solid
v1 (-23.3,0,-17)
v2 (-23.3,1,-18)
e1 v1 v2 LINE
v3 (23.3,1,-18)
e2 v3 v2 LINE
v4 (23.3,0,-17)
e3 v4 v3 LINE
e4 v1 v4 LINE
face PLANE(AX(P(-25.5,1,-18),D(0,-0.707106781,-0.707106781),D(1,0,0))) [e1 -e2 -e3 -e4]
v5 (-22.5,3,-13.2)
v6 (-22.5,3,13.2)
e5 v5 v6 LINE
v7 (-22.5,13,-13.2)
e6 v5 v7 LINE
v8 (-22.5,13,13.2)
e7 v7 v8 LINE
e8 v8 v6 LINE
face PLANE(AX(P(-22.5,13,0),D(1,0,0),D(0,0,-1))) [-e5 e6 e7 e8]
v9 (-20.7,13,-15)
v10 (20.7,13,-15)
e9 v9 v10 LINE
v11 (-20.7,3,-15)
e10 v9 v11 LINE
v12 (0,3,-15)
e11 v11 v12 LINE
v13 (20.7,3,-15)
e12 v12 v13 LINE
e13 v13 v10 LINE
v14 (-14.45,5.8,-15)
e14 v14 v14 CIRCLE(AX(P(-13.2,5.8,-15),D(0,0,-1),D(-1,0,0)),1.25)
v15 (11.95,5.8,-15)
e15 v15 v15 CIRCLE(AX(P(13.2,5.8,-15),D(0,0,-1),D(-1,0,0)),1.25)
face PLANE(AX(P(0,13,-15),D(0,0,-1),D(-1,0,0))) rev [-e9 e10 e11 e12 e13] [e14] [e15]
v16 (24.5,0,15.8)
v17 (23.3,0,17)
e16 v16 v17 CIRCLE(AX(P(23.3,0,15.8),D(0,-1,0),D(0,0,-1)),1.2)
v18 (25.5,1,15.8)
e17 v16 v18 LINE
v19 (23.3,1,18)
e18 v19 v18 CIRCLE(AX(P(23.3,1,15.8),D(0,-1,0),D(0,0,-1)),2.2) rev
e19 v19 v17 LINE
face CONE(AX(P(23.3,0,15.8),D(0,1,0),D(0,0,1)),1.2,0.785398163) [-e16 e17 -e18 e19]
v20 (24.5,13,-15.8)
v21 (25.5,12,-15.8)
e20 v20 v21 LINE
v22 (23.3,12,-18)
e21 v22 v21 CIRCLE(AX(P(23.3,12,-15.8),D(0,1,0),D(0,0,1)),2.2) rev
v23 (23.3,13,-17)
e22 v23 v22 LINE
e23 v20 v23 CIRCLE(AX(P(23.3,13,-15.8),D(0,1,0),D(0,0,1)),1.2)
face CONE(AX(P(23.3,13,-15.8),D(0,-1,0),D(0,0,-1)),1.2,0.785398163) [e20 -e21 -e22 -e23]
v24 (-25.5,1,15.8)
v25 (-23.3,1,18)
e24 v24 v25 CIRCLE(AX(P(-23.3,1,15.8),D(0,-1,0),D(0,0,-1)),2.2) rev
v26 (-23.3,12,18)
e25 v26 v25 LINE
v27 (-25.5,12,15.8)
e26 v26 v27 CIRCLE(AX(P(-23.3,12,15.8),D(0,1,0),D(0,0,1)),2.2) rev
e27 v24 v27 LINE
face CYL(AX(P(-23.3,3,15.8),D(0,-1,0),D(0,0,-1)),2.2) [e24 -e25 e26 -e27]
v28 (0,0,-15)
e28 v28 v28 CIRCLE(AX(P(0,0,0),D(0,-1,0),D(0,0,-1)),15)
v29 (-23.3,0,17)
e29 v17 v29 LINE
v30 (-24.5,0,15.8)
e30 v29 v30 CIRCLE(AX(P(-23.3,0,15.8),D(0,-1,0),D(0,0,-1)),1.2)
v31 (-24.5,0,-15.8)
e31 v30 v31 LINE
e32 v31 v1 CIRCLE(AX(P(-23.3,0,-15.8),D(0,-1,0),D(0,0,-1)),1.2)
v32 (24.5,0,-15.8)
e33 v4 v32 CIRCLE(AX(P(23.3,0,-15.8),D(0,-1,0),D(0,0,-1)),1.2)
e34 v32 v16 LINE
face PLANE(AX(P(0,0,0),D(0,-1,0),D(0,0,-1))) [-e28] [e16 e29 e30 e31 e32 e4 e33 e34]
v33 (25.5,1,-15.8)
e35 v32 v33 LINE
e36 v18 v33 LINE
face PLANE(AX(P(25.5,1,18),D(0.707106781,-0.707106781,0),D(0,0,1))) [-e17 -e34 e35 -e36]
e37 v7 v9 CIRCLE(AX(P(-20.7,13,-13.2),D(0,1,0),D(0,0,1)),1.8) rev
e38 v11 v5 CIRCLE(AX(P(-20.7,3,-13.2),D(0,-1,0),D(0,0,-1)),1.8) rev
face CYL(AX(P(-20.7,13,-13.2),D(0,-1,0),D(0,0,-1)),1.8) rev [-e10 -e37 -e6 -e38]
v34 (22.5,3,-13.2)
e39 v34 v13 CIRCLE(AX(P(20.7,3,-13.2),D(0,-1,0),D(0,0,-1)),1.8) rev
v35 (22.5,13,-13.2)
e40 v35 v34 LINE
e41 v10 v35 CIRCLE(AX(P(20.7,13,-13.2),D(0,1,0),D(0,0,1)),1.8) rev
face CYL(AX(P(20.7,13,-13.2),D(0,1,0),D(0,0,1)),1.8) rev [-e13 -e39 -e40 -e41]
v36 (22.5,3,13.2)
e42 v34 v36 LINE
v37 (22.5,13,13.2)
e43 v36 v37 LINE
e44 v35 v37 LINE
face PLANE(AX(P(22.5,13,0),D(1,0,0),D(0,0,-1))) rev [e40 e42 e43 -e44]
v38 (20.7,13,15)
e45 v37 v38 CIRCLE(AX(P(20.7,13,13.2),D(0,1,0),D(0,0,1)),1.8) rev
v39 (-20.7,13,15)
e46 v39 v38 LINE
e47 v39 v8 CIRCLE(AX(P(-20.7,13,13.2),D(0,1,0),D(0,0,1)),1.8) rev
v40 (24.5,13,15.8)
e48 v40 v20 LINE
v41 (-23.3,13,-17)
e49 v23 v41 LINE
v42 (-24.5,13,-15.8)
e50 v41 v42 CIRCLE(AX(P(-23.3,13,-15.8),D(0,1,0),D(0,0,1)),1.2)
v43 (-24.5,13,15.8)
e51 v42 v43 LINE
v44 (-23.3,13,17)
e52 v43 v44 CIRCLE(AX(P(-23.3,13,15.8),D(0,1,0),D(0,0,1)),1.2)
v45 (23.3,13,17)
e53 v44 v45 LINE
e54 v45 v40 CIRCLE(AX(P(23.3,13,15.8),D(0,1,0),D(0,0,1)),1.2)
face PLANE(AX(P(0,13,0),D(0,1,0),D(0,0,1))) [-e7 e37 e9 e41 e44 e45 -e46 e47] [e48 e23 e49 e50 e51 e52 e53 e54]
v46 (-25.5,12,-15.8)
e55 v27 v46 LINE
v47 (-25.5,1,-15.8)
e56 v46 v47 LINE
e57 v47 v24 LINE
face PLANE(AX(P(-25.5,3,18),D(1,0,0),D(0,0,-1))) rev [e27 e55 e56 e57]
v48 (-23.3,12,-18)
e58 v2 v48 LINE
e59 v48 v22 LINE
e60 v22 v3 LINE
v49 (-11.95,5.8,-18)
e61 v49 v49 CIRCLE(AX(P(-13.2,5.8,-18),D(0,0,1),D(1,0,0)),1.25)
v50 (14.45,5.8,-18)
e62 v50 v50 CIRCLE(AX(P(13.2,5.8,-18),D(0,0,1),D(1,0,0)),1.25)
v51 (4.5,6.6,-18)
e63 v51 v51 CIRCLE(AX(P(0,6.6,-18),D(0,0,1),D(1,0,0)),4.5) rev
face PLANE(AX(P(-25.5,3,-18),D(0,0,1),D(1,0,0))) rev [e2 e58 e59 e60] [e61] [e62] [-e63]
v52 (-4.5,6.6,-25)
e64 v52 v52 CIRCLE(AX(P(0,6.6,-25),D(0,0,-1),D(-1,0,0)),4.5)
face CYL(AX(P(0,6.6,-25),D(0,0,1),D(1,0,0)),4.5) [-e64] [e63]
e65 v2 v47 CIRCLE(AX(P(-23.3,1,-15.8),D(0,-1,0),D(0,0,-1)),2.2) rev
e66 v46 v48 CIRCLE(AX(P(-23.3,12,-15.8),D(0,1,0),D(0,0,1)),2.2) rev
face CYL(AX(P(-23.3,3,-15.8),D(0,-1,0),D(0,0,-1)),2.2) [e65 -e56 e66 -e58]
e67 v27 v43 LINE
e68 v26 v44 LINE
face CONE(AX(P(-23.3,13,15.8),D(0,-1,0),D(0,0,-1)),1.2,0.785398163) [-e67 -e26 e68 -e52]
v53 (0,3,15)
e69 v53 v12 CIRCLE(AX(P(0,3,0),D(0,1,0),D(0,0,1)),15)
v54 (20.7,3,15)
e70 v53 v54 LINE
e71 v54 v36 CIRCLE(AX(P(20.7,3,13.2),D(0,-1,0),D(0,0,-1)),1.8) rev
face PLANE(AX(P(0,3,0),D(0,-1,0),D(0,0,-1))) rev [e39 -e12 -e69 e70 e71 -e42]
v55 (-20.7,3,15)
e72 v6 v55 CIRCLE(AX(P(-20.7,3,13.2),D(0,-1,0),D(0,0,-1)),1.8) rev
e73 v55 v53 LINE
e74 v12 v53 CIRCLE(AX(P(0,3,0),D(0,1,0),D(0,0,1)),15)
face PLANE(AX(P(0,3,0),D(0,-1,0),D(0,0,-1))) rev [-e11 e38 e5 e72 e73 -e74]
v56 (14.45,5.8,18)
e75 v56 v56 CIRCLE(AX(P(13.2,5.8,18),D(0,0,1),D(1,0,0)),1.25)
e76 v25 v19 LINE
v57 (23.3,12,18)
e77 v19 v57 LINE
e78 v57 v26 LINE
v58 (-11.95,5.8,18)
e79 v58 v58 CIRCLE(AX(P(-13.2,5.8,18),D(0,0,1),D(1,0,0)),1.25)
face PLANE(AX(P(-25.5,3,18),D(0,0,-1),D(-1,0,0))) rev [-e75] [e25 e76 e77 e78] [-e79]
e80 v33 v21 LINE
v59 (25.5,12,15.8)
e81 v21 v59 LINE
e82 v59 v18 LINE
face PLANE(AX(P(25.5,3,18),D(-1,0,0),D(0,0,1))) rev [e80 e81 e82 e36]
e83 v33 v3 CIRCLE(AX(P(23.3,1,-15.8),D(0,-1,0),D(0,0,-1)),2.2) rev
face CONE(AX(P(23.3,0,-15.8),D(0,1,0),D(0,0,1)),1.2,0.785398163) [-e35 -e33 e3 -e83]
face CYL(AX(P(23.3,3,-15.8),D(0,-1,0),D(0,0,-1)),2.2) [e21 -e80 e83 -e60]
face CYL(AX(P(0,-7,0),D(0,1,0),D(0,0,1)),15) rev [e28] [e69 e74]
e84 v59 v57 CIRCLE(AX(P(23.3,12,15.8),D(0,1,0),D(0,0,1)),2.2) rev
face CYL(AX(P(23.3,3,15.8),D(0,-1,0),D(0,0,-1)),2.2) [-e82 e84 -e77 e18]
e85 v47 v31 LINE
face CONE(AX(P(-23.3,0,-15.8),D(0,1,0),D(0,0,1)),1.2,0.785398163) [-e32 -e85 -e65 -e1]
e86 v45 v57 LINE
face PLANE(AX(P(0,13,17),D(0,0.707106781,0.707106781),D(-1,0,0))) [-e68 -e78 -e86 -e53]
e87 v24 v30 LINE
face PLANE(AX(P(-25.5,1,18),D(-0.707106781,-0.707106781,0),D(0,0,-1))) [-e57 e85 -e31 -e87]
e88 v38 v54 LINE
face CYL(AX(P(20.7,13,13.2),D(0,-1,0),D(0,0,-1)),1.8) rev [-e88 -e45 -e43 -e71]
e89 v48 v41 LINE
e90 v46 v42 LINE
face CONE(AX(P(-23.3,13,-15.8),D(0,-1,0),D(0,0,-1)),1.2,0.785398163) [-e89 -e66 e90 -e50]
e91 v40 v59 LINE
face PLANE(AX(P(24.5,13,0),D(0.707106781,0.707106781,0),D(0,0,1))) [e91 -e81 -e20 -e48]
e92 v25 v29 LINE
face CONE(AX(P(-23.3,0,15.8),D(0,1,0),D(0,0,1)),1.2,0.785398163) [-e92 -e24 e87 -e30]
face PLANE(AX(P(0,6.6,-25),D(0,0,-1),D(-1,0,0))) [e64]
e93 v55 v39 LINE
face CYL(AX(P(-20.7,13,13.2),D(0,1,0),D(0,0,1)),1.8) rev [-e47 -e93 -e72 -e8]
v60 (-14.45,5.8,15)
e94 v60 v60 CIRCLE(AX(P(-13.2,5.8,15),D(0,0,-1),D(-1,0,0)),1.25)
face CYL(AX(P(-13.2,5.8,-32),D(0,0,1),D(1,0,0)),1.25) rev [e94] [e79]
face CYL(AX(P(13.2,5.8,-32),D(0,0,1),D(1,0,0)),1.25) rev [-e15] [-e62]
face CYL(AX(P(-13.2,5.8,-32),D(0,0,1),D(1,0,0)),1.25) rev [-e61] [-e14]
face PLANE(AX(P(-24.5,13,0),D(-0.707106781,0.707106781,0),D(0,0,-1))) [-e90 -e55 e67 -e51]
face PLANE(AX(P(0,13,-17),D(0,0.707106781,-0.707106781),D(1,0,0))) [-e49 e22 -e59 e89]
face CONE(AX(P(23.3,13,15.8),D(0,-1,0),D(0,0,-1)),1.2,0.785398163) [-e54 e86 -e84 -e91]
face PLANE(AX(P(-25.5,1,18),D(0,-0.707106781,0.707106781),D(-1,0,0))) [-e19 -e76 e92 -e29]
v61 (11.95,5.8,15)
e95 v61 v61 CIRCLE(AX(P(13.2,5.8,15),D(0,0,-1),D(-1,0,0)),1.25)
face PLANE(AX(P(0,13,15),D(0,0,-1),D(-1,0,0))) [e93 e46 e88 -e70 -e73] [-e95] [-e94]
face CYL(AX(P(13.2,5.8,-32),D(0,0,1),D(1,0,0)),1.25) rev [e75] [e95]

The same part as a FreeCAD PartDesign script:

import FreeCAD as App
import Part
import Sketcher

V = App.Vector


def edges_at(feature, points):
    """Names of the edges that pass closest to the given points."""
    edges = feature.Shape.Edges
    near = lambda p: min(range(len(edges)), key=lambda i: edges[i].distToShape(Part.Vertex(*p))[0])
    return sorted({f"Edge{near(p) + 1}" for p in points})

doc = App.newDocument("Part")
params = doc.addObject("Spreadsheet::Sheet", "Params")
for row, (alias, value) in enumerate([
    ("sketch1_width", "51 mm"),
    ("sketch1_height", "36 mm"),
    ("pad1_length", "3 mm"),
    ("sketch2_width", "51 mm"),
    ("sketch2_width2", "45 mm"),
    ("sketch2_height", "36 mm"),
    ("sketch2_height2", "30 mm"),
    ("pad2_length", "10 mm"),
    ("fillet_radius", "1.8 mm"),
    ("fillet2_radius", "2.2 mm"),
    ("chamfer_size", "1 mm"),
    ("sketch3_diameter", "30 mm"),
    ("pocket1_length", "10 mm"),
    ("sketch4_diameter", "2.5 mm"),
    ("pocket2_length", "50 mm"),
    ("chamfer2_size", "1 mm"),
    ("sketch5_diameter", "9 mm"),
    ("pad3_length", "7 mm"),
], start=1):
    params.set(f"A{row}", alias)
    params.set(f"B{row}", "=" + value)
    params.setAlias(f"B{row}", alias)

body = doc.addObject("PartDesign::Body", "Body")

sketch1 = body.newObject("Sketcher::SketchObject", "Sketch")
sketch1.AttachmentSupport = (doc.getObject("XZ_Plane"), [""])
sketch1.MapMode = "FlatFace"
sketch1.addGeometry(Part.LineSegment(V(-26, -18, 0), V(-26, 18, 0)), False)
sketch1.addGeometry(Part.LineSegment(V(-26, 18, 0), V(26, 18, 0)), False)
sketch1.addGeometry(Part.LineSegment(V(26, 18, 0), V(26, -18, 0)), False)
sketch1.addGeometry(Part.LineSegment(V(26, -18, 0), V(-26, -18, 0)), False)
sketch1.addConstraint(Sketcher.Constraint("Coincident", 0, 2, 1, 1))
sketch1.addConstraint(Sketcher.Constraint("Coincident", 1, 2, 2, 1))
sketch1.addConstraint(Sketcher.Constraint("Coincident", 2, 2, 3, 1))
sketch1.addConstraint(Sketcher.Constraint("Coincident", 3, 2, 0, 1))
sketch1.addConstraint(Sketcher.Constraint("Vertical", 0))
sketch1.addConstraint(Sketcher.Constraint("Horizontal", 1))
sketch1.addConstraint(Sketcher.Constraint("Vertical", 2))
sketch1.addConstraint(Sketcher.Constraint("Horizontal", 3))
sketch1.addConstraint(Sketcher.Constraint("Symmetric", 0, 2, 2, 2, -1, 1))
sketch1.addConstraint(Sketcher.Constraint("DistanceX", 1, 1, 1, 2, 51.0))
sketch1.addConstraint(Sketcher.Constraint("DistanceY", 0, 1, 0, 2, 36.0))
sketch1.setExpression("Constraints[9]", "Params.sketch1_width")
sketch1.setExpression("Constraints[10]", "Params.sketch1_height")
pad1 = body.newObject("PartDesign::Pad", "Pad")
pad1.Profile = sketch1
pad1.setExpression("Length", "Params.pad1_length")
pad1.Reversed = True

sketch2 = body.newObject("Sketcher::SketchObject", "Sketch001")
sketch2.AttachmentSupport = (doc.getObject("XZ_Plane"), [""])
sketch2.MapMode = "FlatFace"
sketch2.AttachmentOffset = App.Placement(V(0, 0, -3), App.Rotation())
sketch2.addGeometry(Part.LineSegment(V(-26, -18, 0), V(-26, 18, 0)), False)
sketch2.addGeometry(Part.LineSegment(V(-26, 18, 0), V(26, 18, 0)), False)
sketch2.addGeometry(Part.LineSegment(V(26, 18, 0), V(26, -18, 0)), False)
sketch2.addGeometry(Part.LineSegment(V(26, -18, 0), V(-26, -18, 0)), False)
sketch2.addGeometry(Part.LineSegment(V(22, 15, 0), V(-22, 15, 0)), False)
sketch2.addGeometry(Part.LineSegment(V(-22, 15, 0), V(-22, -15, 0)), False)
sketch2.addGeometry(Part.LineSegment(V(-22, -15, 0), V(22, -15, 0)), False)
sketch2.addGeometry(Part.LineSegment(V(22, -15, 0), V(22, 15, 0)), False)
sketch2.addConstraint(Sketcher.Constraint("Coincident", 0, 2, 1, 1))
sketch2.addConstraint(Sketcher.Constraint("Coincident", 1, 2, 2, 1))
sketch2.addConstraint(Sketcher.Constraint("Coincident", 2, 2, 3, 1))
sketch2.addConstraint(Sketcher.Constraint("Coincident", 3, 2, 0, 1))
sketch2.addConstraint(Sketcher.Constraint("Coincident", 4, 2, 5, 1))
sketch2.addConstraint(Sketcher.Constraint("Coincident", 5, 2, 6, 1))
sketch2.addConstraint(Sketcher.Constraint("Coincident", 6, 2, 7, 1))
sketch2.addConstraint(Sketcher.Constraint("Coincident", 7, 2, 4, 1))
sketch2.addConstraint(Sketcher.Constraint("Vertical", 0))
sketch2.addConstraint(Sketcher.Constraint("Horizontal", 1))
sketch2.addConstraint(Sketcher.Constraint("Vertical", 2))
sketch2.addConstraint(Sketcher.Constraint("Horizontal", 3))
sketch2.addConstraint(Sketcher.Constraint("Horizontal", 4))
sketch2.addConstraint(Sketcher.Constraint("Vertical", 5))
sketch2.addConstraint(Sketcher.Constraint("Horizontal", 6))
sketch2.addConstraint(Sketcher.Constraint("Vertical", 7))
sketch2.addConstraint(Sketcher.Constraint("Symmetric", 0, 2, 2, 2, -1, 1))
sketch2.addConstraint(Sketcher.Constraint("Symmetric", 4, 2, 6, 2, -1, 1))
sketch2.addConstraint(Sketcher.Constraint("DistanceX", 1, 1, 1, 2, 51.0))
sketch2.addConstraint(Sketcher.Constraint("DistanceX", 4, 2, 4, 1, 45.0))
sketch2.addConstraint(Sketcher.Constraint("DistanceY", 0, 1, 0, 2, 36.0))
sketch2.addConstraint(Sketcher.Constraint("DistanceY", 5, 2, 5, 1, 30.0))
sketch2.setExpression("Constraints[18]", "Params.sketch2_width")
sketch2.setExpression("Constraints[19]", "Params.sketch2_width2")
sketch2.setExpression("Constraints[20]", "Params.sketch2_height")
sketch2.setExpression("Constraints[21]", "Params.sketch2_height2")
pad2 = body.newObject("PartDesign::Pad", "Pad001")
pad2.Profile = sketch2
pad2.setExpression("Length", "Params.pad2_length")
pad2.Reversed = True
doc.recompute()

fillet = body.newObject("PartDesign::Fillet", "Fillet")
fillet.Base = (pad2, edges_at(pad2, [
    (22.5, 8, 15),
    (-22.5, 8, 15),
    (-22.5, 8, -15),
    (22.5, 8, -15),
]))
fillet.setExpression("Radius", "Params.fillet_radius")
doc.recompute()

fillet2 = body.newObject("PartDesign::Fillet", "Fillet001")
fillet2.Base = (fillet, edges_at(fillet, [
    (25.5, 6.5, 18),
    (-25.5, 6.5, 18),
    (-25.5, 6.5, -18),
    (25.5, 6.5, -18),
]))
fillet2.setExpression("Radius", "Params.fillet2_radius")
doc.recompute()

chamfer = body.newObject("PartDesign::Chamfer", "Chamfer")
chamfer.Base = (fillet2, edges_at(fillet2, [
    (-25.5, 0, 0),
    (25.5, 0, 0),
    (0, 0, 18),
    (0, 0, -18),
    (24.856, 0, 17.356),
    (24.856, 0, -17.356),
    (-24.856, 0, 17.356),
    (-24.856, 0, -17.356),
]))
chamfer.setExpression("Size", "Params.chamfer_size")

sketch3 = body.newObject("Sketcher::SketchObject", "Sketch002")
sketch3.AttachmentSupport = (doc.getObject("XZ_Plane"), [""])
sketch3.MapMode = "FlatFace"
sketch3.AttachmentOffset = App.Placement(V(0, 0, -3), App.Rotation())
sketch3.addGeometry(Part.Circle(V(0, 0, 0), V(0, 0, 1), 15), False)
sketch3.addConstraint(Sketcher.Constraint("Coincident", 0, 3, -1, 1))
sketch3.addConstraint(Sketcher.Constraint("Diameter", 0, 30.0))
sketch3.setExpression("Constraints[1]", "Params.sketch3_diameter")
pocket1 = body.newObject("PartDesign::Pocket", "Pocket")
pocket1.Profile = sketch3
pocket1.setExpression("Length", "Params.pocket1_length")
pocket1.Reversed = True

sketch4 = body.newObject("Sketcher::SketchObject", "Sketch003")
sketch4.AttachmentSupport = (doc.getObject("XY_Plane"), [""])
sketch4.MapMode = "FlatFace"
sketch4.AttachmentOffset = App.Placement(V(0, 0, 18), App.Rotation())
sketch4.addGeometry(Part.Circle(V(-13.2, 5.8, 0), V(0, 0, 1), 1.2), False)
sketch4.addGeometry(Part.Circle(V(13.2, 5.8, 0), V(0, 0, 1), 1.2), False)
sketch4.addConstraint(Sketcher.Constraint("Equal", 0, 1))
sketch4.addConstraint(Sketcher.Constraint("Symmetric", 0, 3, 1, 3, -2))
sketch4.addConstraint(Sketcher.Constraint("Diameter", 0, 2.5))
sketch4.addConstraint(Sketcher.Constraint("DistanceX", 0, 3, -1, 1, 13.2))
sketch4.addConstraint(Sketcher.Constraint("DistanceY", -1, 1, 0, 3, 5.8))
sketch4.setExpression("Constraints[2]", "Params.sketch4_diameter")
pocket2 = body.newObject("PartDesign::Pocket", "Pocket001")
pocket2.Profile = sketch4
pocket2.setExpression("Length", "Params.pocket2_length")
doc.recompute()

chamfer2 = body.newObject("PartDesign::Chamfer", "Chamfer001")
chamfer2.Base = (pocket2, edges_at(pocket2, [
    (-25.5, 13, 0),
    (0, 13, -18),
    (0, 13, 18),
    (25.5, 13, 0),
    (24.856, 13, 17.356),
    (24.856, 13, -17.356),
    (-24.856, 13, 17.356),
    (-24.856, 13, -17.356),
]))
chamfer2.setExpression("Size", "Params.chamfer2_size")

sketch5 = body.newObject("Sketcher::SketchObject", "Sketch004")
sketch5.AttachmentSupport = (doc.getObject("XY_Plane"), [""])
sketch5.MapMode = "FlatFace"
sketch5.AttachmentOffset = App.Placement(V(0, 0, -18), App.Rotation())
sketch5.addGeometry(Part.Circle(V(0, 6.6, 0), V(0, 0, 1), 4.5), False)
sketch5.addConstraint(Sketcher.Constraint("PointOnObject", 0, 3, -2))
sketch5.addConstraint(Sketcher.Constraint("Diameter", 0, 9.0))
sketch5.addConstraint(Sketcher.Constraint("DistanceY", -1, 1, 0, 3, 6.6))
sketch5.setExpression("Constraints[1]", "Params.sketch5_diameter")
pad3 = body.newObject("PartDesign::Pad", "Pad002")
pad3.Profile = sketch5
pad3.setExpression("Length", "Params.pad3_length")
pad3.Reversed = True

doc.recompute()
